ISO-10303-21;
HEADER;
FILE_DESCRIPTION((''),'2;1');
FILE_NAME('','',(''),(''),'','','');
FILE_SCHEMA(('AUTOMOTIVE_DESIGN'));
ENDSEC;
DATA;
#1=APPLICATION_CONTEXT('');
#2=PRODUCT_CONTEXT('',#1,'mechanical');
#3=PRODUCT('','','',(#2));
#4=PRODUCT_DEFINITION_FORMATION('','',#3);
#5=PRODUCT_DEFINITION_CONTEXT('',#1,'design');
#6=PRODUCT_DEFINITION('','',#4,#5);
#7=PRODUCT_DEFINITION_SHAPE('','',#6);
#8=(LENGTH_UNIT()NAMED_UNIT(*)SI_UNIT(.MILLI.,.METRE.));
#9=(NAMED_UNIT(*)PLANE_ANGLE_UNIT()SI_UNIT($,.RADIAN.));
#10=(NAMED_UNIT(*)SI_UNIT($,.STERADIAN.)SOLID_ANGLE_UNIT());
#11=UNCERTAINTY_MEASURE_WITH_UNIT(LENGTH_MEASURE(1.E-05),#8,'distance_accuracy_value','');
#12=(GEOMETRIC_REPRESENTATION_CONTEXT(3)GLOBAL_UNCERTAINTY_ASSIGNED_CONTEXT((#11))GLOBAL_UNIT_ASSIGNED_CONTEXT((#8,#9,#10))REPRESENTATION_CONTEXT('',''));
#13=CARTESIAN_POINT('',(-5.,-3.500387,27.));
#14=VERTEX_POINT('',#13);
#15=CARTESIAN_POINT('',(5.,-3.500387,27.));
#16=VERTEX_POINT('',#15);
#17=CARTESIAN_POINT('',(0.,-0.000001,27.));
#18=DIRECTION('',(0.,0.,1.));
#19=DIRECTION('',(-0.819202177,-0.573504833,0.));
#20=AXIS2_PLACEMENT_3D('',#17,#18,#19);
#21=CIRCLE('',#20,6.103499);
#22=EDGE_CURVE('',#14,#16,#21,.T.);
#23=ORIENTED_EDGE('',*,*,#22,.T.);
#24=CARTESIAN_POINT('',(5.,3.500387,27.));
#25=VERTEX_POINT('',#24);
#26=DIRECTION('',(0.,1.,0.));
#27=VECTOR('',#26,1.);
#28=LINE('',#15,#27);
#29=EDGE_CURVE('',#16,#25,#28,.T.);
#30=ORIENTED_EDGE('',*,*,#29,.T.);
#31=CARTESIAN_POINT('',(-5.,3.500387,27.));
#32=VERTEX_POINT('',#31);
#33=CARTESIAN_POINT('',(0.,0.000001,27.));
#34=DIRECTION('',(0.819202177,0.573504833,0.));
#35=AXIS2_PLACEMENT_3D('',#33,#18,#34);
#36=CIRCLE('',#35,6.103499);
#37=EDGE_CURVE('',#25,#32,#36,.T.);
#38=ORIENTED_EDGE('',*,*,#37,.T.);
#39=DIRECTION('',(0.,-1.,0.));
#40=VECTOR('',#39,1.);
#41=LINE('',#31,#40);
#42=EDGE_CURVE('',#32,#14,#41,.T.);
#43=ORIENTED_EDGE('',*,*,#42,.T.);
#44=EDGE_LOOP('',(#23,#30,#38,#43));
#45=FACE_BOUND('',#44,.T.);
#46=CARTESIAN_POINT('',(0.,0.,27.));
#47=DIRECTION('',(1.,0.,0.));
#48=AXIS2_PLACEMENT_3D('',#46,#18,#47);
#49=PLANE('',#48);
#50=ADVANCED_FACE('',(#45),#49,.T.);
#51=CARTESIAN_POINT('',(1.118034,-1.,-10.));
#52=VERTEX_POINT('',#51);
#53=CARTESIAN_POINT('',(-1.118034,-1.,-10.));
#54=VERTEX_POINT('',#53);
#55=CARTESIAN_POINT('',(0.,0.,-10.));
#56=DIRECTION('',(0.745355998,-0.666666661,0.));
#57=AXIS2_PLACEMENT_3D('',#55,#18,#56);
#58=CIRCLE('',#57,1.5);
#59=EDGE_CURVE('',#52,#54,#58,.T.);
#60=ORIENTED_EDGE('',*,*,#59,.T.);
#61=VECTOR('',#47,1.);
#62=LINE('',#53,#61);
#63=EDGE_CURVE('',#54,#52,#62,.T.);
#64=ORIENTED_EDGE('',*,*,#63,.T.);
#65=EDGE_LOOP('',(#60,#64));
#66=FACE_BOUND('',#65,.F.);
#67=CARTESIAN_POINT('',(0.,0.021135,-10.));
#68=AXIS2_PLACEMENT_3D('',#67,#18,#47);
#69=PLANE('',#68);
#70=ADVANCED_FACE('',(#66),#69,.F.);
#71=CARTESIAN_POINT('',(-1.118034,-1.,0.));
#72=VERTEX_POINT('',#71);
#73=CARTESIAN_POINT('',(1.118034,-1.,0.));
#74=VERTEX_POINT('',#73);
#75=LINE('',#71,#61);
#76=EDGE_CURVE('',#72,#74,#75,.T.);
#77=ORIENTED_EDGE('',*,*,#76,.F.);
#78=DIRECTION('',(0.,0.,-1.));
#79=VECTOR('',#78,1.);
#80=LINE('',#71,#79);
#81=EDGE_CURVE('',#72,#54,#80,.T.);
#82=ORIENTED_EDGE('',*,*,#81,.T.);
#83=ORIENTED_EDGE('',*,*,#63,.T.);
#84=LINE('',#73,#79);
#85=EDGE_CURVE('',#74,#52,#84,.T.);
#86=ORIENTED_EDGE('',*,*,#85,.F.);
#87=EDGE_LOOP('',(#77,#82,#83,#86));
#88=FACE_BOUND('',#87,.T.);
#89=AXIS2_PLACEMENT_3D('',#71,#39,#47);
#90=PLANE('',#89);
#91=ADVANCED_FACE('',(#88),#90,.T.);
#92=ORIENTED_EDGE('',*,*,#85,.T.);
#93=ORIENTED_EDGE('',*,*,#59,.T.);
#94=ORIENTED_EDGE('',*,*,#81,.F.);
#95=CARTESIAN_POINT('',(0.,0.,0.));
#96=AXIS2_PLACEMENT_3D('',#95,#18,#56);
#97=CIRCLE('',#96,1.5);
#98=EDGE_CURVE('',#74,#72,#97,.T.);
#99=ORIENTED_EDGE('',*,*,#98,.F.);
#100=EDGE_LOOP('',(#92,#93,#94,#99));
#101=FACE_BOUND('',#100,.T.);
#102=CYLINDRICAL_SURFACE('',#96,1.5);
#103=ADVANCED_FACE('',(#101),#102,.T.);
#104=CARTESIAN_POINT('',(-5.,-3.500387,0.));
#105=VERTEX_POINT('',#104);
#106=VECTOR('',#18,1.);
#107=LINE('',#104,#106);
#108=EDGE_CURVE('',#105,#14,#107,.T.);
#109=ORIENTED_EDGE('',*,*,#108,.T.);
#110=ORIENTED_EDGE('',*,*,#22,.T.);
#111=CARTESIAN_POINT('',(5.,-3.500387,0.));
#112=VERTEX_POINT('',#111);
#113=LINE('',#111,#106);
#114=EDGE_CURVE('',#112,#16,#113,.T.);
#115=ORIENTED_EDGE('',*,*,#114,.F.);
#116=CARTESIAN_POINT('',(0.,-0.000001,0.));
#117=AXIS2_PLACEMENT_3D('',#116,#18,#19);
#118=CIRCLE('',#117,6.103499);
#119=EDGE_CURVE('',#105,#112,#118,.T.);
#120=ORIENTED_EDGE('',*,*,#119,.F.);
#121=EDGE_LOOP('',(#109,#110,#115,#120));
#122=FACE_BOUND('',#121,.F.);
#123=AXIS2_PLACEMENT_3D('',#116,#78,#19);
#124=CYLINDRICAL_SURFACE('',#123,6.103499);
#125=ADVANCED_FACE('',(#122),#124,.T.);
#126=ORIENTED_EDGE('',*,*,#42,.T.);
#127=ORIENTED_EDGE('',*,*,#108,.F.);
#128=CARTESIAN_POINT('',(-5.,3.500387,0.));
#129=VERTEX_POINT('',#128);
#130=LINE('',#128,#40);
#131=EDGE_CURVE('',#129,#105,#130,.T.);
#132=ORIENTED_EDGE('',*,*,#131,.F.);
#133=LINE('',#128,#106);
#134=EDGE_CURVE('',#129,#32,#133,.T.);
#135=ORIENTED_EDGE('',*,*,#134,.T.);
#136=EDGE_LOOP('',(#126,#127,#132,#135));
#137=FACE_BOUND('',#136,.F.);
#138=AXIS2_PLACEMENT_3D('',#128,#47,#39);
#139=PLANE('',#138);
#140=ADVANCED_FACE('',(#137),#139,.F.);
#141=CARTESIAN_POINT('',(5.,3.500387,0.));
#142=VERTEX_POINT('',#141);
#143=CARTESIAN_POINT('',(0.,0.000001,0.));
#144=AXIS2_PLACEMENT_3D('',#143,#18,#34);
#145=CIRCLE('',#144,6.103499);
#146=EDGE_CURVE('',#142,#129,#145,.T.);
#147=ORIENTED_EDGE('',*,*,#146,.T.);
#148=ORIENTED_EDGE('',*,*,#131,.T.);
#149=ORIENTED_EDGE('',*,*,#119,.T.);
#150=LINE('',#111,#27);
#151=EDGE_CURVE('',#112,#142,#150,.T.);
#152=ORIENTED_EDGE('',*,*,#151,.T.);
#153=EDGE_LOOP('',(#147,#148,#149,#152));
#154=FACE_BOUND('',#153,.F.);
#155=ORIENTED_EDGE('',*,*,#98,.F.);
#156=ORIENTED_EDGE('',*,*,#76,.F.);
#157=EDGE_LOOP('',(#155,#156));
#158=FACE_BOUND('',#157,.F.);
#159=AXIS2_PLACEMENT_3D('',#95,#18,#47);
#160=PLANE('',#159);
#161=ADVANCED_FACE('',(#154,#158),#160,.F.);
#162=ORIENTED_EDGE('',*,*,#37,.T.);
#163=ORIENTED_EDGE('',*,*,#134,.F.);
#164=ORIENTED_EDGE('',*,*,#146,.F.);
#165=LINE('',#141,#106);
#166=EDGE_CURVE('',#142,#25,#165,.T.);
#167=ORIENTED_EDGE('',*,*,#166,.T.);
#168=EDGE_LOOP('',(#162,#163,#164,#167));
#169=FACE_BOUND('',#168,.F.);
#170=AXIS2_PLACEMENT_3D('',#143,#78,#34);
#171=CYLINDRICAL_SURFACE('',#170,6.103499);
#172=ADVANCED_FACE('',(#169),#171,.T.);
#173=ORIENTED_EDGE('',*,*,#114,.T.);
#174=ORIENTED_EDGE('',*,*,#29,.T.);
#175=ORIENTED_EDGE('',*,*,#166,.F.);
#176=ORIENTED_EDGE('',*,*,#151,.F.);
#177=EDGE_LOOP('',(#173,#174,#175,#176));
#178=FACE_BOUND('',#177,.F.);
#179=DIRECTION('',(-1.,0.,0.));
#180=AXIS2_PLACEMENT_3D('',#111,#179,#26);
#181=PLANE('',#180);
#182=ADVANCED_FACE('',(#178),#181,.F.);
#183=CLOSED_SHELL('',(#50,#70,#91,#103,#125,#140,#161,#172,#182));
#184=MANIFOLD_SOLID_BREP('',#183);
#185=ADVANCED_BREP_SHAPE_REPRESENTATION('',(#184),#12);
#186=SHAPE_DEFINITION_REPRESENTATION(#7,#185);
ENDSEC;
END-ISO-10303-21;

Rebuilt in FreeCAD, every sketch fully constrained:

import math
import FreeCAD as App
import Part
import Sketcher

V = App.Vector
Q = App.Units.Quantity

doc = App.newDocument("Part")
params = doc.addObject("Spreadsheet::Sheet", "Params")
for row, (alias, value) in enumerate([
    ("pad1_length", "27 mm"),
    ("sketch2_radius", "1.5 mm"),
    ("pad2_length", "10 mm"),
], start=1):
    params.set(f"A{row}", alias)
    params.set(f"B{row}", "=" + value)
    params.setAlias(f"B{row}", alias)

body = doc.addObject("PartDesign::Body", "Body")

sketch1 = body.newObject("Sketcher::SketchObject", "Sketch")
sketch1.AttachmentSupport = (doc.getObject("XY_Plane"), [""])
sketch1.MapMode = "FlatFace"
sketch1.addGeometry([
    Part.LineSegment(V(5, -4, 0), V(5, 4, 0)),
    Part.ArcOfCircle(Part.Circle(V(0, 0, 0), V(0, 0, 1), 6), math.radians(35), math.radians(145)),
    Part.LineSegment(V(-5, 4, 0), V(-5, -4, 0)),
    Part.ArcOfCircle(Part.Circle(V(0, 0, 0), V(0, 0, 1), 6), math.radians(-145), math.radians(-35)),
], False)
sketch1.addConstraint([
    Sketcher.Constraint("Coincident", 0, 2, 1, 1),
    Sketcher.Constraint("Coincident", 1, 2, 2, 1),
    Sketcher.Constraint("Coincident", 2, 2, 3, 1),
    Sketcher.Constraint("Coincident", 3, 2, 0, 1),
    Sketcher.Constraint("Vertical", 0),
    Sketcher.Constraint("Vertical", 2),
    Sketcher.Constraint("Coincident", 1, 3, -1, 1),
    Sketcher.Constraint("Coincident", 3, 3, -1, 1),
    Sketcher.Constraint("Equal", 1, 3),
    Sketcher.Constraint("Horizontal", 0, 2, 1, 2),
    Sketcher.Constraint("DistanceX", -1, 1, 0, 2, Q("5 mm")),
    Sketcher.Constraint("Radius", 1, Q("6.103499 mm")),
])
pad1 = body.newObject("PartDesign::Pad", "Pad")
pad1.Profile = sketch1
pad1.setExpression("Length", "Params.pad1_length")

sketch2 = body.newObject("Sketcher::SketchObject", "Sketch001")
sketch2.AttachmentSupport = (doc.getObject("XY_Plane"), [""])
sketch2.MapMode = "FlatFace"
sketch2.addGeometry([
    Part.LineSegment(V(-1.1, -1, 0), V(1.1, -1, 0)),
    Part.ArcOfCircle(Part.Circle(V(0, 0, 0), V(0, 0, 1), 1.5), math.radians(-42), math.radians(222)),
], False)
sketch2.addConstraint([
    Sketcher.Constraint("Coincident", 0, 1, 1, 2),
    Sketcher.Constraint("Coincident", 1, 1, 0, 2),
    Sketcher.Constraint("Horizontal", 0),
    Sketcher.Constraint("Coincident", 1, 3, -1, 1),
    Sketcher.Constraint("Radius", 1, Q("1.5 mm")),
    Sketcher.Constraint("DistanceY", 0, 1, -1, 1, Q("1 mm")),
])
sketch2.setExpression("Constraints[4]", "Params.sketch2_radius")
pad2 = body.newObject("PartDesign::Pad", "Pad001")
pad2.Profile = sketch2
pad2.setExpression("Length", "Params.pad2_length")
pad2.Reversed = True

doc.recompute()
